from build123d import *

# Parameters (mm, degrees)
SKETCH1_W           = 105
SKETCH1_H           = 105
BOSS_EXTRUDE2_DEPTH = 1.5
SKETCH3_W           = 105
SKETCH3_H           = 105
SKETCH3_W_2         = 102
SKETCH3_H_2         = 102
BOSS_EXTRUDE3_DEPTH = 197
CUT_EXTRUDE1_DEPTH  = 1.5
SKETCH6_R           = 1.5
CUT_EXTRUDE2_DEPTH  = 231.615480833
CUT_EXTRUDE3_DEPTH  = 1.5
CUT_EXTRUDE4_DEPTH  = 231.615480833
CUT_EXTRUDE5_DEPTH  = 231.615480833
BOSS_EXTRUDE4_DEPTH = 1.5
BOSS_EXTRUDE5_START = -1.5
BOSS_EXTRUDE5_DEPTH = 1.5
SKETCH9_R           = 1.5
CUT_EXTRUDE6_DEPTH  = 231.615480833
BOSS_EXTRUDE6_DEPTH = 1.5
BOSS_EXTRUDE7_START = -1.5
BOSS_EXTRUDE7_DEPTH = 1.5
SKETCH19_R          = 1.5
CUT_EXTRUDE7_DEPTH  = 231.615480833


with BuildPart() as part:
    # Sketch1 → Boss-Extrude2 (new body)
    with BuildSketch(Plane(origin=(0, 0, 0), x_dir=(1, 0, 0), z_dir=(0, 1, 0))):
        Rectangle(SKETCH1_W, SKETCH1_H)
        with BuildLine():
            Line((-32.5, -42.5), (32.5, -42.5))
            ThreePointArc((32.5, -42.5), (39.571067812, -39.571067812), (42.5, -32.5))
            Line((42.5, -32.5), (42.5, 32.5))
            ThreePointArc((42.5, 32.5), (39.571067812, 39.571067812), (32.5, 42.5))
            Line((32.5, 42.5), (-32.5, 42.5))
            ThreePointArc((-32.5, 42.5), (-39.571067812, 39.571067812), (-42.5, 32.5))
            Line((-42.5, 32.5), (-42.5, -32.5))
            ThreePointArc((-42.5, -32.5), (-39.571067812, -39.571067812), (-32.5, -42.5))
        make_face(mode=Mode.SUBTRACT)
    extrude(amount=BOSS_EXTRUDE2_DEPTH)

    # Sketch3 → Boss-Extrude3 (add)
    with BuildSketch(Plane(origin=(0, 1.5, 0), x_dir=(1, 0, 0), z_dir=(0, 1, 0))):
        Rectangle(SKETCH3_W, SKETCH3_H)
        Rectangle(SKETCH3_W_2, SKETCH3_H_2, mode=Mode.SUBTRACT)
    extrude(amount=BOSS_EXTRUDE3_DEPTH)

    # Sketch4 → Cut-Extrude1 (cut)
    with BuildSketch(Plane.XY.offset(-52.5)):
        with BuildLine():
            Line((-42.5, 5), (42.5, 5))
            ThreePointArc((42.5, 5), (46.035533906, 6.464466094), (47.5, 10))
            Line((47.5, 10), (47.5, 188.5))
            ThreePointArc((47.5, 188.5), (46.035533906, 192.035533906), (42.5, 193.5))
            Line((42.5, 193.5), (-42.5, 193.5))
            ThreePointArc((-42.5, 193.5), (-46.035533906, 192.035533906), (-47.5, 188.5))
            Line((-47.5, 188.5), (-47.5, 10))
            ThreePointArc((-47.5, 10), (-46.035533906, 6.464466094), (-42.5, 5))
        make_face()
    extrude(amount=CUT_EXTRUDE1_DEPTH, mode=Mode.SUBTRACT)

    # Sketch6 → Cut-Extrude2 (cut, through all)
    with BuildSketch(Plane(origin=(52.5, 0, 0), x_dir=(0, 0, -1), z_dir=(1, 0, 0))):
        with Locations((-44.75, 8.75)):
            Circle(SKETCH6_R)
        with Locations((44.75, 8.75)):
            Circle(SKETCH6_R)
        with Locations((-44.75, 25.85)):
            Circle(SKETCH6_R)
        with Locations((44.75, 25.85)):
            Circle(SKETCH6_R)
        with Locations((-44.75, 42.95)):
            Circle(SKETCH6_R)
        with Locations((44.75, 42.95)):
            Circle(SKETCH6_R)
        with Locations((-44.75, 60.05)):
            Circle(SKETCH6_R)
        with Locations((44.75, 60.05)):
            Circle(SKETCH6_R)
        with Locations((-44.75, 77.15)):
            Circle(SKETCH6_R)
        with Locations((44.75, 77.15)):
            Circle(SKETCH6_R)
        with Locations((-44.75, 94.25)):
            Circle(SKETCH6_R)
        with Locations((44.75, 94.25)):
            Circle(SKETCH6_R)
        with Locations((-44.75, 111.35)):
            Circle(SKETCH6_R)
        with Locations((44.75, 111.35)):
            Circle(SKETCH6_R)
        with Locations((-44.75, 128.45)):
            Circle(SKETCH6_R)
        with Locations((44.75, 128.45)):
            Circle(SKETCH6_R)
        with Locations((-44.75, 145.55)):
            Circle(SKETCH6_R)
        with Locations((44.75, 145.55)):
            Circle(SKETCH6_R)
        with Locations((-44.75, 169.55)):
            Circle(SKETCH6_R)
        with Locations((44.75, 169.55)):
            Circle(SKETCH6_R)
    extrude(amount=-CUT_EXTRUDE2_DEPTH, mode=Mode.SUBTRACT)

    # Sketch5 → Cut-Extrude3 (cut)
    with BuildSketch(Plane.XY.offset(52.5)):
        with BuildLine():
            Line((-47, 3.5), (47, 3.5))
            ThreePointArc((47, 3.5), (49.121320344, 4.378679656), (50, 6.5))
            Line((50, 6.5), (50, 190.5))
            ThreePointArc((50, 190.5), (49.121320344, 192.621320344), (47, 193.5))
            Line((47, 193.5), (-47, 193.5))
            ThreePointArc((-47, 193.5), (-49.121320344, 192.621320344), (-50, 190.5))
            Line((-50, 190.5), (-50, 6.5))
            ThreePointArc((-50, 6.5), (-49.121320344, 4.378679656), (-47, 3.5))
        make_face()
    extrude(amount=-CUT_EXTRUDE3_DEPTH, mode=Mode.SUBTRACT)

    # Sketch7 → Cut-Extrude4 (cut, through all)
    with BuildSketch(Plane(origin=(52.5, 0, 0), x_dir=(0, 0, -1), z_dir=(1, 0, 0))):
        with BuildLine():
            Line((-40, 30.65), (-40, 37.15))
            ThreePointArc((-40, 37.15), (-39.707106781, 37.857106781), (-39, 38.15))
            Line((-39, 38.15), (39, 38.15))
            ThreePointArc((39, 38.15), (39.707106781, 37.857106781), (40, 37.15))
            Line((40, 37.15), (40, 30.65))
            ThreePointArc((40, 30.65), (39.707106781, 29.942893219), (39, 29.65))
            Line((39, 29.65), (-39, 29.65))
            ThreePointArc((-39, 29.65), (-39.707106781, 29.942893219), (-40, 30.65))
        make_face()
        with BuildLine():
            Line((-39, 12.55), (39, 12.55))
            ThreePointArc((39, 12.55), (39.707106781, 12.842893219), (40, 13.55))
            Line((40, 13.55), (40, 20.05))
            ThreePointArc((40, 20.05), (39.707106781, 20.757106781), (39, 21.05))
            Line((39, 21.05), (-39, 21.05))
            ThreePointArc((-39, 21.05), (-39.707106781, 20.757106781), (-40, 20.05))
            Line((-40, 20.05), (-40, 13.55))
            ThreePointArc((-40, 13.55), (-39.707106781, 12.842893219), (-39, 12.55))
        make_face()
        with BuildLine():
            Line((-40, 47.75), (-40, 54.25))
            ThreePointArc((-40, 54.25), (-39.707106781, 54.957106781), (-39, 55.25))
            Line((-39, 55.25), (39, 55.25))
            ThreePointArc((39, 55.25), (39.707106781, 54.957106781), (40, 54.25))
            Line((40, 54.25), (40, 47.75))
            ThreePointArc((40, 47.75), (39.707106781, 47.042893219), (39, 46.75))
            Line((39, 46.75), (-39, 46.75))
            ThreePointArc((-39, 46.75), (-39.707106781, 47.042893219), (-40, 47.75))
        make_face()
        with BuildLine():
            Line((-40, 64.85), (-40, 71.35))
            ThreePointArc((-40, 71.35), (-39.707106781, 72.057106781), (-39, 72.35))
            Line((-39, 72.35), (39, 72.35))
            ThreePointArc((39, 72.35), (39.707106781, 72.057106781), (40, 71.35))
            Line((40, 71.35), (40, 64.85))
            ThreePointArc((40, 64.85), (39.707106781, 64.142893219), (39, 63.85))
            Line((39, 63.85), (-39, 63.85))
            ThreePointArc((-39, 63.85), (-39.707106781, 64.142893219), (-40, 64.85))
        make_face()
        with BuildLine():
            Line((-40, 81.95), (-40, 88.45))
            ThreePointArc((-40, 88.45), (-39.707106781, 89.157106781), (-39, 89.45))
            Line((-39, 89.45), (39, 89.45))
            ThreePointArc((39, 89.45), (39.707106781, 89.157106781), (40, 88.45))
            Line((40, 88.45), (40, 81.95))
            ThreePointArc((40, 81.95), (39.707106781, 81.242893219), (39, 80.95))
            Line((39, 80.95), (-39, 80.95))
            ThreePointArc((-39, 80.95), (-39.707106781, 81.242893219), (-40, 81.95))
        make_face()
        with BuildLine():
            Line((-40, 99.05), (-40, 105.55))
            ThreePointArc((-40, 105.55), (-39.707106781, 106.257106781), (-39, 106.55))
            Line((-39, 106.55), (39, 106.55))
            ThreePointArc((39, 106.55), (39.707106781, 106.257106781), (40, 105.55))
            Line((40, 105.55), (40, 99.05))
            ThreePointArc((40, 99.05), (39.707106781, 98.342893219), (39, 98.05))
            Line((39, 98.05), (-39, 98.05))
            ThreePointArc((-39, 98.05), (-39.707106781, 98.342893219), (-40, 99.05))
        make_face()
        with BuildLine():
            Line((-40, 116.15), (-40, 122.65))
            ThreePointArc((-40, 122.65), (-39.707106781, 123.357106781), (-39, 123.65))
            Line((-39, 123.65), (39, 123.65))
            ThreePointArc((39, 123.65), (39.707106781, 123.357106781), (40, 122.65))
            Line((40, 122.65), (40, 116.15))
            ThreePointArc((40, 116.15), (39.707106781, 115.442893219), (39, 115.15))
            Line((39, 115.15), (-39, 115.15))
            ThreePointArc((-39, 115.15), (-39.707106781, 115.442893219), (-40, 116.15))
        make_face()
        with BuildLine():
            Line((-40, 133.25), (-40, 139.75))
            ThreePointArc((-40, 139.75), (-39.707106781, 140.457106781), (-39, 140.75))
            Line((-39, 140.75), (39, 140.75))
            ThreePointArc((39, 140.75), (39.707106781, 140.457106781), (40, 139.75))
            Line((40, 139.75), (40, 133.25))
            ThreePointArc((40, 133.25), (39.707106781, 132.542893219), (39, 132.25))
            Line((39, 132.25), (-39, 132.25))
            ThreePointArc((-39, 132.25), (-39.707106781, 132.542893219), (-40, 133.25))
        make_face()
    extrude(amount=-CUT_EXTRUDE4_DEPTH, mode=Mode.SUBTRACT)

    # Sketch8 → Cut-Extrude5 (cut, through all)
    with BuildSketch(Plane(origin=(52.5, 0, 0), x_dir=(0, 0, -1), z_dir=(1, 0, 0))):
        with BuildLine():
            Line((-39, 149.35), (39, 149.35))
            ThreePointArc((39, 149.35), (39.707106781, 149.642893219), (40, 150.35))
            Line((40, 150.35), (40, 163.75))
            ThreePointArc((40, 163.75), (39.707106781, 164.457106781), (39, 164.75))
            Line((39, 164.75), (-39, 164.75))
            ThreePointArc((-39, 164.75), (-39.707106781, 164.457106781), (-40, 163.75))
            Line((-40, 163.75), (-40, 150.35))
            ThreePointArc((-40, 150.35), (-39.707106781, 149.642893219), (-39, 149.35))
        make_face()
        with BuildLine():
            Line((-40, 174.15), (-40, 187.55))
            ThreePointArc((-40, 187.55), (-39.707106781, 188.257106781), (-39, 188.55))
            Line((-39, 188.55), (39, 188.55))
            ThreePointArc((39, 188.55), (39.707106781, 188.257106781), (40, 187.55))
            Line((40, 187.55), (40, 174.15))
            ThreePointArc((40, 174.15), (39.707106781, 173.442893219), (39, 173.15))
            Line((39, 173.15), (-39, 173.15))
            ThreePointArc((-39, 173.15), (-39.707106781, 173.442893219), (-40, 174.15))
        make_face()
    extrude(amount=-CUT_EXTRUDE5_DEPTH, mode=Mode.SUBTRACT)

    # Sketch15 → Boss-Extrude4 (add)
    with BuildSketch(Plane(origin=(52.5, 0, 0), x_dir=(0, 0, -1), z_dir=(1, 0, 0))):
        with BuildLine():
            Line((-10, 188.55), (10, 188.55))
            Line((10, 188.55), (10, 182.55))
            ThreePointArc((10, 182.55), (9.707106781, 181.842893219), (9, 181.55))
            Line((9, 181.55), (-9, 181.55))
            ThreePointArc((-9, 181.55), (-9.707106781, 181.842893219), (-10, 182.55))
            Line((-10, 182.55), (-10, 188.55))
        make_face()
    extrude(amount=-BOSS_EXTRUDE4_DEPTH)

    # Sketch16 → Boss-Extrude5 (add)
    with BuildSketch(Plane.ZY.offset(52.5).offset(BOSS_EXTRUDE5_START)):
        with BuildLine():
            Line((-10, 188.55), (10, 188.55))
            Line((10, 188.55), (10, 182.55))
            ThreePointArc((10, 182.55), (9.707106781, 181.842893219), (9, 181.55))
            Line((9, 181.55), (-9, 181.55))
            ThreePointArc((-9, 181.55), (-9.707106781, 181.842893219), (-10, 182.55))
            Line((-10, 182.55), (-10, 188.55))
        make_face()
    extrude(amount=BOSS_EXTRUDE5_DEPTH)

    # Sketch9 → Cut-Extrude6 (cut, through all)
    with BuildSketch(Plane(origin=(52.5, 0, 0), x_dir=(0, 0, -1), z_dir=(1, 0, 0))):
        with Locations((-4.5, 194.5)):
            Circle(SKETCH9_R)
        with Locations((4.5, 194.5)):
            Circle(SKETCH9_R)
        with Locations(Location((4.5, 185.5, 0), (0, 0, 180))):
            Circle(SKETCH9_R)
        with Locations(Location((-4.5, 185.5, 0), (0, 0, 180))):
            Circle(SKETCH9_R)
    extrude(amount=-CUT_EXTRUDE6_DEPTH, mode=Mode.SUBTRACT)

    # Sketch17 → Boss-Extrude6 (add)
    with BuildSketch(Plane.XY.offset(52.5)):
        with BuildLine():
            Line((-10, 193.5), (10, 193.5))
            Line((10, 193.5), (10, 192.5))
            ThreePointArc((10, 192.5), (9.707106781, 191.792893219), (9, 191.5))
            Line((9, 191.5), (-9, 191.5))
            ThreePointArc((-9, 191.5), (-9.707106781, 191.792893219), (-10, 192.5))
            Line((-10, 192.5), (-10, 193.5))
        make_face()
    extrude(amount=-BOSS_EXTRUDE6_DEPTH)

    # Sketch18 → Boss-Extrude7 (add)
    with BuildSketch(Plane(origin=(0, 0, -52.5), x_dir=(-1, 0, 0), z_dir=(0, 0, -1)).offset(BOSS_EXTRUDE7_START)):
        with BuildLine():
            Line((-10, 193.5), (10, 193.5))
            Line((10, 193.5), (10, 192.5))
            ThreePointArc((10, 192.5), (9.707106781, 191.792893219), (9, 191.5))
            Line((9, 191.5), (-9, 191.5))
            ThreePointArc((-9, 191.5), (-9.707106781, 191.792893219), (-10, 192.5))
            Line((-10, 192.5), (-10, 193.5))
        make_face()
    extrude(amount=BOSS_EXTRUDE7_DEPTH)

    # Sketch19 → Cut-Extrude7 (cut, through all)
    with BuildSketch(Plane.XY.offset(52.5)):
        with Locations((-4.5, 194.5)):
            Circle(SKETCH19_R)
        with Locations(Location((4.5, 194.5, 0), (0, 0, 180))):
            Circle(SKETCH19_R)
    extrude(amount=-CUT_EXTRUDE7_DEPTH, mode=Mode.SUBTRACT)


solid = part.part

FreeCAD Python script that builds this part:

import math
import FreeCAD as App
import Part
import Sketcher

V = App.Vector


def add_polygon(sketch, points):
    """Adds a closed chain of lines whose ends are joined by coincident constraints."""
    first, n = sketch.GeometryCount, len(points)
    for a, b in zip(points, points[1:] + points[:1]):
        sketch.addGeometry(Part.LineSegment(App.Vector(*a, 0), App.Vector(*b, 0)), False)
    for i in range(n):
        sketch.addConstraint(Sketcher.Constraint("Coincident", first + i, 2, first + (i + 1) % n, 1))

doc = App.newDocument("Part")
body = doc.addObject("PartDesign::Body", "Body")

# Sketch on XZ plane
sketch1 = body.newObject("Sketcher::SketchObject", "Sketch")
sketch1.AttachmentSupport = (doc.getObject("XZ_Plane"), [""])
sketch1.MapMode = "FlatFace"
add_polygon(sketch1, [(-52, -52), (-52, 52), (52, 52), (52, -52)])  # lines 0-3
sketch1.addGeometry(Part.LineSegment(V(32, 42, 0), V(-32, 42, 0)), False)  # 4
sketch1.addGeometry(Part.ArcOfCircle(Part.Circle(V(-32, 32, 0), V(0, 0, 1), 10), math.radians(90), math.radians(180)), False)  # 5
sketch1.addGeometry(Part.LineSegment(V(-42, 32, 0), V(-42, -32, 0)), False)  # 6
sketch1.addGeometry(Part.ArcOfCircle(Part.Circle(V(-32, -32, 0), V(0, 0, 1), 10), math.radians(180), math.radians(270)), False)  # 7
sketch1.addGeometry(Part.LineSegment(V(-32, -42, 0), V(32, -42, 0)), False)  # 8
sketch1.addGeometry(Part.ArcOfCircle(Part.Circle(V(32, -32, 0), V(0, 0, 1), 10), math.radians(-90), math.radians(0)), False)  # 9
sketch1.addGeometry(Part.LineSegment(V(42, -32, 0), V(42, 32, 0)), False)  # 10
sketch1.addGeometry(Part.ArcOfCircle(Part.Circle(V(32, 32, 0), V(0, 0, 1), 10), math.radians(0), math.radians(90)), False)  # 11
sketch1.addConstraint([
    Sketcher.Constraint("Tangent", 4, 2, 5, 1),
    Sketcher.Constraint("Tangent", 5, 2, 6, 1),
    Sketcher.Constraint("Tangent", 6, 2, 7, 1),
    Sketcher.Constraint("Tangent", 7, 2, 8, 1),
    Sketcher.Constraint("Tangent", 8, 2, 9, 1),
    Sketcher.Constraint("Tangent", 9, 2, 10, 1),
    Sketcher.Constraint("Tangent", 10, 2, 11, 1),
    Sketcher.Constraint("Tangent", 11, 2, 4, 1),
    Sketcher.Constraint("Vertical", 0),
    Sketcher.Constraint("Horizontal", 1),
    Sketcher.Constraint("Vertical", 2),
    Sketcher.Constraint("Horizontal", 3),
    Sketcher.Constraint("Horizontal", 4),
    Sketcher.Constraint("Vertical", 6),
    Sketcher.Constraint("Horizontal", 8),
    Sketcher.Constraint("Vertical", 10),
    Sketcher.Constraint("Equal", 5, 7),
    Sketcher.Constraint("Equal", 7, 9),
    Sketcher.Constraint("Equal", 9, 11),
    Sketcher.Constraint("Symmetric", 5, 3, 9, 3, -1, 1),
    Sketcher.Constraint("Symmetric", 0, 2, 2, 2, -1, 1),
    Sketcher.Constraint("Equal", 3, 0),
    Sketcher.Constraint("Equal", 8, 6),
    Sketcher.Constraint("Radius", 5, 10.0),
    Sketcher.Constraint("DistanceX", 1, 1, 1, 2, 105.0),
    Sketcher.Constraint("DistanceX", 4, 2, 4, 1, 65.0),
])
pad1 = body.newObject("PartDesign::Pad", "Pad")
pad1.Profile = sketch1
pad1.Length = 1.5
pad1.Reversed = True

# Sketch on XZ plane
sketch2 = body.newObject("Sketcher::SketchObject", "Sketch001")
sketch2.AttachmentSupport = (doc.getObject("XZ_Plane"), [""])
sketch2.MapMode = "FlatFace"
sketch2.AttachmentOffset = App.Placement(V(0, 0, -1.5), App.Rotation())
add_polygon(sketch2, [(-52, -52), (-52, 52), (52, 52), (52, -52)])  # lines 0-3
add_polygon(sketch2, [(51, 51), (-51, 51), (-51, -51), (51, -51)])  # lines 4-7
sketch2.addConstraint([
    Sketcher.Constraint("Vertical", 0),
    Sketcher.Constraint("Horizontal", 1),
    Sketcher.Constraint("Vertical", 2),
    Sketcher.Constraint("Horizontal", 3),
    Sketcher.Constraint("Horizontal", 4),
    Sketcher.Constraint("Vertical", 5),
    Sketcher.Constraint("Horizontal", 6),
    Sketcher.Constraint("Vertical", 7),
    Sketcher.Constraint("Symmetric", 0, 2, 2, 2, -1, 1),
    Sketcher.Constraint("Symmetric", 4, 2, 6, 2, -1, 1),
    Sketcher.Constraint("Equal", 3, 0),
    Sketcher.Constraint("Equal", 6, 5),
    Sketcher.Constraint("DistanceX", 1, 1, 1, 2, 105.0),
    Sketcher.Constraint("DistanceX", 4, 2, 4, 1, 102.0),
])
pad2 = body.newObject("PartDesign::Pad", "Pad001")
pad2.Profile = sketch2
pad2.Length = 197
pad2.Reversed = True

# Sketch on XY plane
sketch3 = body.newObject("Sketcher::SketchObject", "Sketch002")
sketch3.AttachmentSupport = (doc.getObject("XY_Plane"), [""])
sketch3.MapMode = "FlatFace"
sketch3.AttachmentOffset = App.Placement(V(0, 0, -52.5), App.Rotation())
sketch3.addGeometry([
    Part.LineSegment(V(-42, 5, 0), V(42, 5, 0)),  # 0
    Part.ArcOfCircle(Part.Circle(V(42, 10, 0), V(0, 0, 1), 5), math.radians(-90), math.radians(0)),  # 1
    Part.LineSegment(V(48, 10, 0), V(48, 188, 0)),  # 2
    Part.ArcOfCircle(Part.Circle(V(42, 188, 0), V(0, 0, 1), 5), math.radians(0), math.radians(90)),  # 3
    Part.LineSegment(V(42, 194, 0), V(-42, 194, 0)),  # 4
    Part.ArcOfCircle(Part.Circle(V(-42, 188, 0), V(0, 0, 1), 5), math.radians(90), math.radians(180)),  # 5
    Part.LineSegment(V(-48, 188, 0), V(-48, 10, 0)),  # 6
    Part.ArcOfCircle(Part.Circle(V(-42, 10, 0), V(0, 0, 1), 5), math.radians(180), math.radians(270)),  # 7
], False)
sketch3.addConstraint([
    Sketcher.Constraint("Tangent", 0, 2, 1, 1),
    Sketcher.Constraint("Tangent", 1, 2, 2, 1),
    Sketcher.Constraint("Tangent", 2, 2, 3, 1),
    Sketcher.Constraint("Tangent", 3, 2, 4, 1),
    Sketcher.Constraint("Tangent", 4, 2, 5, 1),
    Sketcher.Constraint("Tangent", 5, 2, 6, 1),
    Sketcher.Constraint("Tangent", 6, 2, 7, 1),
    Sketcher.Constraint("Tangent", 7, 2, 0, 1),
    Sketcher.Constraint("Horizontal", 0),
    Sketcher.Constraint("Vertical", 2),
    Sketcher.Constraint("Horizontal", 4),
    Sketcher.Constraint("Vertical", 6),
    Sketcher.Constraint("Equal", 1, 3),
    Sketcher.Constraint("Equal", 3, 5),
    Sketcher.Constraint("Equal", 5, 7),
    Sketcher.Constraint("Radius", 1, 5.0),
    Sketcher.Constraint("DistanceX", 0, 1, 0, 2, 85.0),
    Sketcher.Constraint("DistanceY", 2, 1, 2, 2, 178.5),
    Sketcher.Constraint("DistanceY", -1, 1, 1, 3, 10.0),
    Sketcher.Constraint("DistanceX", -1, 1, 1, 3, 42.5),
])
pocket1 = body.newObject("PartDesign::Pocket", "Pocket")
pocket1.Profile = sketch3
pocket1.Length = 1.5
pocket1.Reversed = True

# Sketch on YZ plane
sketch4 = body.newObject("Sketcher::SketchObject", "Sketch003")
sketch4.AttachmentSupport = (doc.getObject("YZ_Plane"), [""])
sketch4.MapMode = "FlatFace"
sketch4.AttachmentOffset = App.Placement(V(0, 0, 52.5), App.Rotation())
sketch4.addGeometry([
    Part.Circle(V(8.8, 44.8, 0), V(0, 0, 1), 1.5),  # 0
    Part.Circle(V(8.8, -44.8, 0), V(0, 0, 1), 1.5),  # 1
    Part.Circle(V(25.9, 44.8, 0), V(0, 0, 1), 1.5),  # 2
    Part.Circle(V(25.9, -44.8, 0), V(0, 0, 1), 1.5),  # 3
    Part.Circle(V(43, 44.8, 0), V(0, 0, 1), 1.5),  # 4
    Part.Circle(V(43, -44.8, 0), V(0, 0, 1), 1.5),  # 5
    Part.Circle(V(60, 44.8, 0), V(0, 0, 1), 1.5),  # 6
    Part.Circle(V(60, -44.8, 0), V(0, 0, 1), 1.5),  # 7
    Part.Circle(V(77.2, 44.8, 0), V(0, 0, 1), 1.5),  # 8
    Part.Circle(V(77.2, -44.8, 0), V(0, 0, 1), 1.5),  # 9
    Part.Circle(V(94.2, 44.8, 0), V(0, 0, 1), 1.5),  # 10
    Part.Circle(V(94.2, -44.8, 0), V(0, 0, 1), 1.5),  # 11
    Part.Circle(V(111.3, 44.8, 0), V(0, 0, 1), 1.5),  # 12
    Part.Circle(V(111.3, -44.8, 0), V(0, 0, 1), 1.5),  # 13
    Part.Circle(V(128.4, 44.8, 0), V(0, 0, 1), 1.5),  # 14
    Part.Circle(V(128.4, -44.8, 0), V(0, 0, 1), 1.5),  # 15
    Part.Circle(V(145.6, 44.8, 0), V(0, 0, 1), 1.5),  # 16
    Part.Circle(V(145.6, -44.8, 0), V(0, 0, 1), 1.5),  # 17
    Part.Circle(V(169.6, 44.8, 0), V(0, 0, 1), 1.5),  # 18
    Part.Circle(V(169.6, -44.8, 0), V(0, 0, 1), 1.5),  # 19
], False)
sketch4.addConstraint([
    Sketcher.Constraint("Equal", 0, 1),
    Sketcher.Constraint("Equal", 1, 2),
    Sketcher.Constraint("Equal", 2, 3),
    Sketcher.Constraint("Equal", 3, 4),
    Sketcher.Constraint("Equal", 4, 5),
    Sketcher.Constraint("Equal", 5, 6),
    Sketcher.Constraint("Equal", 6, 7),
    Sketcher.Constraint("Equal", 7, 8),
    Sketcher.Constraint("Equal", 8, 9),
    Sketcher.Constraint("Equal", 9, 10),
    Sketcher.Constraint("Equal", 10, 11),
    Sketcher.Constraint("Equal", 11, 12),
    Sketcher.Constraint("Equal", 12, 13),
    Sketcher.Constraint("Equal", 13, 14),
    Sketcher.Constraint("Equal", 14, 15),
    Sketcher.Constraint("Equal", 15, 16),
    Sketcher.Constraint("Equal", 16, 17),
    Sketcher.Constraint("Equal", 17, 18),
    Sketcher.Constraint("Equal", 18, 19),
    Sketcher.Constraint("Symmetric", 0, 3, 1, 3, -1),
    Sketcher.Constraint("Symmetric", 2, 3, 3, 3, -1),
    Sketcher.Constraint("Symmetric", 4, 3, 5, 3, -1),
    Sketcher.Constraint("Symmetric", 6, 3, 7, 3, -1),
    Sketcher.Constraint("Symmetric", 8, 3, 9, 3, -1),
    Sketcher.Constraint("Symmetric", 10, 3, 11, 3, -1),
    Sketcher.Constraint("Symmetric", 12, 3, 13, 3, -1),
    Sketcher.Constraint("Symmetric", 14, 3, 15, 3, -1),
    Sketcher.Constraint("Symmetric", 16, 3, 17, 3, -1),
    Sketcher.Constraint("Symmetric", 18, 3, 19, 3, -1),
    Sketcher.Constraint("Horizontal", 0, 3, 2, 3),
    Sketcher.Constraint("Horizontal", 2, 3, 4, 3),
    Sketcher.Constraint("Horizontal", 4, 3, 6, 3),
    Sketcher.Constraint("Horizontal", 6, 3, 8, 3),
    Sketcher.Constraint("Horizontal", 8, 3, 10, 3),
    Sketcher.Constraint("Horizontal", 10, 3, 12, 3),
    Sketcher.Constraint("Horizontal", 12, 3, 14, 3),
    Sketcher.Constraint("Horizontal", 14, 3, 16, 3),
    Sketcher.Constraint("Horizontal", 16, 3, 18, 3),
    Sketcher.Constraint("Diameter", 0, 3.0),
    Sketcher.Constraint("DistanceX", 16, 3, 18, 3, 24.0),
    Sketcher.Constraint("DistanceY", 1, 3, 0, 3, 89.5),
    Sketcher.Constraint("DistanceX", 0, 3, 2, 3, 17.1),
    Sketcher.Constraint("DistanceX", 2, 3, 4, 3, 17.1),
    Sketcher.Constraint("DistanceX", 4, 3, 6, 3, 17.1),
    Sketcher.Constraint("DistanceX", 6, 3, 8, 3, 17.1),
    Sketcher.Constraint("DistanceX", 8, 3, 10, 3, 17.1),
    Sketcher.Constraint("DistanceX", 10, 3, 12, 3, 17.1),
    Sketcher.Constraint("DistanceX", 12, 3, 14, 3, 17.1),
    Sketcher.Constraint("DistanceX", 14, 3, 16, 3, 17.1),
    Sketcher.Constraint("DistanceX", -1, 1, 0, 3, 8.75),
])
pocket2 = body.newObject("PartDesign::Pocket", "Pocket001")
pocket2.Profile = sketch4
pocket2.Type = "ThroughAll"

# Sketch on XY plane
sketch5 = body.newObject("Sketcher::SketchObject", "Sketch004")
sketch5.AttachmentSupport = (doc.getObject("XY_Plane"), [""])
sketch5.MapMode = "FlatFace"
sketch5.AttachmentOffset = App.Placement(V(0, 0, 52.5), App.Rotation())
sketch5.addGeometry([
    Part.LineSegment(V(-47, 3.5, 0), V(47, 3.5, 0)),  # 0
    Part.ArcOfCircle(Part.Circle(V(47, 6.5, 0), V(0, 0, 1), 3), math.radians(-90), math.radians(0)),  # 1
    Part.LineSegment(V(50, 6.5, 0), V(50, 190.5, 0)),  # 2
    Part.ArcOfCircle(Part.Circle(V(47, 190.5, 0), V(0, 0, 1), 3), math.radians(0), math.radians(90)),  # 3
    Part.LineSegment(V(47, 193.5, 0), V(-47, 193.5, 0)),  # 4
    Part.ArcOfCircle(Part.Circle(V(-47, 190.5, 0), V(0, 0, 1), 3), math.radians(90), math.radians(180)),  # 5
    Part.LineSegment(V(-50, 190.5, 0), V(-50, 6.5, 0)),  # 6
    Part.ArcOfCircle(Part.Circle(V(-47, 6.5, 0), V(0, 0, 1), 3), math.radians(180), math.radians(270)),  # 7
], False)
sketch5.addConstraint([
    Sketcher.Constraint("Tangent", 0, 2, 1, 1),
    Sketcher.Constraint("Tangent", 1, 2, 2, 1),
    Sketcher.Constraint("Tangent", 2, 2, 3, 1),
    Sketcher.Constraint("Tangent", 3, 2, 4, 1),
    Sketcher.Constraint("Tangent", 4, 2, 5, 1),
    Sketcher.Constraint("Tangent", 5, 2, 6, 1),
    Sketcher.Constraint("Tangent", 6, 2, 7, 1),
    Sketcher.Constraint("Tangent", 7, 2, 0, 1),
    Sketcher.Constraint("Horizontal", 0),
    Sketcher.Constraint("Vertical", 2),
    Sketcher.Constraint("Horizontal", 4),
    Sketcher.Constraint("Vertical", 6),
    Sketcher.Constraint("Equal", 1, 3),
    Sketcher.Constraint("Equal", 3, 5),
    Sketcher.Constraint("Equal", 5, 7),
    Sketcher.Constraint("Radius", 1, 3.0),
    Sketcher.Constraint("DistanceX", 0, 1, 0, 2, 94.0),
    Sketcher.Constraint("DistanceY", 2, 1, 2, 2, 184.0),
    Sketcher.Constraint("DistanceX", -1, 1, 1, 3, 47.0),
    Sketcher.Constraint("DistanceY", -1, 1, 1, 3, 6.5),
])
pocket3 = body.newObject("PartDesign::Pocket", "Pocket002")
pocket3.Profile = sketch5
pocket3.Length = 1.5

# Sketch on YZ plane
sketch6 = body.newObject("Sketcher::SketchObject", "Sketch005")
sketch6.AttachmentSupport = (doc.getObject("YZ_Plane"), [""])
sketch6.MapMode = "FlatFace"
sketch6.AttachmentOffset = App.Placement(V(0, 0, 52.5), App.Rotation())
sketch6.addGeometry([
    Part.LineSegment(V(37.1, 40, 0), V(30.6, 40, 0)),  # 0
    Part.ArcOfCircle(Part.Circle(V(30.7, 39, 0), V(0, 0, 1), 1), math.radians(90), math.radians(180)),  # 1
    Part.LineSegment(V(29.6, 39, 0), V(29.6, -39, 0)),  # 2
    Part.ArcOfCircle(Part.Circle(V(30.7, -39, 0), V(0, 0, 1), 1), math.radians(-180), math.radians(-90)),  # 3
    Part.LineSegment(V(30.6, -40, 0), V(37.1, -40, 0)),  # 4
    Part.ArcOfCircle(Part.Circle(V(37.1, -39, 0), V(0, 0, 1), 1), math.radians(-90), math.radians(0)),  # 5
    Part.LineSegment(V(38.1, -39, 0), V(38.1, 39, 0)),  # 6
    Part.ArcOfCircle(Part.Circle(V(37.1, 39, 0), V(0, 0, 1), 1), math.radians(0), math.radians(90)),  # 7
    Part.LineSegment(V(12.6, 39, 0), V(12.6, -39, 0)),  # 8
    Part.ArcOfCircle(Part.Circle(V(13.6, -39, 0), V(0, 0, 1), 1), math.radians(-180), math.radians(-90)),  # 9
    Part.LineSegment(V(13.6, -40, 0), V(20.1, -40, 0)),  # 10
    Part.ArcOfCircle(Part.Circle(V(20, -39, 0), V(0, 0, 1), 1), math.radians(-90), math.radians(0)),  # 11
    Part.LineSegment(V(21.1, -39, 0), V(21.1, 39, 0)),  # 12
    Part.ArcOfCircle(Part.Circle(V(20, 39, 0), V(0, 0, 1), 1), math.radians(0), math.radians(90)),  # 13
    Part.LineSegment(V(20.1, 40, 0), V(13.6, 40, 0)),  # 14
    Part.ArcOfCircle(Part.Circle(V(13.6, 39, 0), V(0, 0, 1), 1), math.radians(90), math.radians(180)),  # 15
    Part.LineSegment(V(54.2, 40, 0), V(47.8, 40, 0)),  # 16
    Part.ArcOfCircle(Part.Circle(V(47.8, 39, 0), V(0, 0, 1), 1), math.radians(90), math.radians(180)),  # 17
    Part.LineSegment(V(46.8, 39, 0), V(46.8, -39, 0)),  # 18
    Part.ArcOfCircle(Part.Circle(V(47.8, -39, 0), V(0, 0, 1), 1), math.radians(-180), math.radians(-90)),  # 19
    Part.LineSegment(V(47.8, -40, 0), V(54.2, -40, 0)),  # 20
    Part.ArcOfCircle(Part.Circle(V(54.2, -39, 0), V(0, 0, 1), 1), math.radians(-90), math.radians(0)),  # 21
    Part.LineSegment(V(55.2, -39, 0), V(55.2, 39, 0)),  # 22
    Part.ArcOfCircle(Part.Circle(V(54.2, 39, 0), V(0, 0, 1), 1), math.radians(0), math.radians(90)),  # 23
    Part.LineSegment(V(71.3, 40, 0), V(64.8, 40, 0)),  # 24
    Part.ArcOfCircle(Part.Circle(V(64.9, 39, 0), V(0, 0, 1), 1), math.radians(90), math.radians(180)),  # 25
    Part.LineSegment(V(63.9, 39, 0), V(63.9, -39, 0)),  # 26
    Part.ArcOfCircle(Part.Circle(V(64.9, -39, 0), V(0, 0, 1), 1), math.radians(-180), math.radians(-90)),  # 27
    Part.LineSegment(V(64.8, -40, 0), V(71.3, -40, 0)),  # 28
    Part.ArcOfCircle(Part.Circle(V(71.3, -39, 0), V(0, 0, 1), 1), math.radians(-90), math.radians(0)),  # 29
    Part.LineSegment(V(72.3, -39, 0), V(72.3, 39, 0)),  # 30
    Part.ArcOfCircle(Part.Circle(V(71.3, 39, 0), V(0, 0, 1), 1), math.radians(0), math.radians(90)),  # 31
    Part.LineSegment(V(88.5, 40, 0), V(82, 40, 0)),  # 32
    Part.ArcOfCircle(Part.Circle(V(82, 39, 0), V(0, 0, 1), 1), math.radians(90), math.radians(180)),  # 33
    Part.LineSegment(V(81, 39, 0), V(81, -39, 0)),  # 34
    Part.ArcOfCircle(Part.Circle(V(82, -39, 0), V(0, 0, 1), 1), math.radians(-180), math.radians(-90)),  # 35
    Part.LineSegment(V(82, -40, 0), V(88.5, -40, 0)),  # 36
    Part.ArcOfCircle(Part.Circle(V(88.4, -39, 0), V(0, 0, 1), 1), math.radians(-90), math.radians(0)),  # 37
    Part.LineSegment(V(89.5, -39, 0), V(89.5, 39, 0)),  # 38
    Part.ArcOfCircle(Part.Circle(V(88.4, 39, 0), V(0, 0, 1), 1), math.radians(0), math.radians(90)),  # 39
    Part.LineSegment(V(105.5, 40, 0), V(99, 40, 0)),  # 40
    Part.ArcOfCircle(Part.Circle(V(99.1, 39, 0), V(0, 0, 1), 1), math.radians(90), math.radians(180)),  # 41
    Part.LineSegment(V(98, 39, 0), V(98, -39, 0)),  # 42
    Part.ArcOfCircle(Part.Circle(V(99.1, -39, 0), V(0, 0, 1), 1), math.radians(-180), math.radians(-90)),  # 43
    Part.LineSegment(V(99, -40, 0), V(105.5, -40, 0)),  # 44
    Part.ArcOfCircle(Part.Circle(V(105.5, -39, 0), V(0, 0, 1), 1), math.radians(-90), math.radians(0)),  # 45
    Part.LineSegment(V(106.5, -39, 0), V(106.5, 39, 0)),  # 46
    Part.ArcOfCircle(Part.Circle(V(105.5, 39, 0), V(0, 0, 1), 1), math.radians(0), math.radians(90)),  # 47
    Part.LineSegment(V(122.7, 40, 0), V(116.2, 40, 0)),  # 48
    Part.ArcOfCircle(Part.Circle(V(116.2, 39, 0), V(0, 0, 1), 1), math.radians(90), math.radians(180)),  # 49
    Part.LineSegment(V(115.2, 39, 0), V(115.2, -39, 0)),  # 50
    Part.ArcOfCircle(Part.Circle(V(116.2, -39, 0), V(0, 0, 1), 1), math.radians(-180), math.radians(-90)),  # 51
    Part.LineSegment(V(116.2, -40, 0), V(122.7, -40, 0)),  # 52
    Part.ArcOfCircle(Part.Circle(V(122.6, -39, 0), V(0, 0, 1), 1), math.radians(-90), math.radians(0)),  # 53
    Part.LineSegment(V(123.7, -39, 0), V(123.7, 39, 0)),  # 54
    Part.ArcOfCircle(Part.Circle(V(122.6, 39, 0), V(0, 0, 1), 1), math.radians(0), math.radians(90)),  # 55
    Part.LineSegment(V(139.8, 40, 0), V(133.2, 40, 0)),  # 56
    Part.ArcOfCircle(Part.Circle(V(133.3, 39, 0), V(0, 0, 1), 1), math.radians(90), math.radians(180)),  # 57
    Part.LineSegment(V(132.2, 39, 0), V(132.2, -39, 0)),  # 58
    Part.ArcOfCircle(Part.Circle(V(133.3, -39, 0), V(0, 0, 1), 1), math.radians(-180), math.radians(-90)),  # 59
    Part.LineSegment(V(133.2, -40, 0), V(139.8, -40, 0)),  # 60
    Part.ArcOfCircle(Part.Circle(V(139.7, -39, 0), V(0, 0, 1), 1), math.radians(-90), math.radians(0)),  # 61
    Part.LineSegment(V(140.8, -39, 0), V(140.8, 39, 0)),  # 62
    Part.ArcOfCircle(Part.Circle(V(139.7, 39, 0), V(0, 0, 1), 1), math.radians(0), math.radians(90)),  # 63
], False)
sketch6.addConstraint([
    Sketcher.Constraint("Tangent", 0, 2, 1, 1),
    Sketcher.Constraint("Tangent", 1, 2, 2, 1),
    Sketcher.Constraint("Tangent", 2, 2, 3, 1),
    Sketcher.Constraint("Tangent", 3, 2, 4, 1),
    Sketcher.Constraint("Tangent", 4, 2, 5, 1),
    Sketcher.Constraint("Tangent", 5, 2, 6, 1),
    Sketcher.Constraint("Tangent", 6, 2, 7, 1),
    Sketcher.Constraint("Tangent", 7, 2, 0, 1),
    Sketcher.Constraint("Tangent", 8, 2, 9, 1),
    Sketcher.Constraint("Tangent", 9, 2, 10, 1),
    Sketcher.Constraint("Tangent", 10, 2, 11, 1),
    Sketcher.Constraint("Tangent", 11, 2, 12, 1),
    Sketcher.Constraint("Tangent", 12, 2, 13, 1),
    Sketcher.Constraint("Tangent", 13, 2, 14, 1),
    Sketcher.Constraint("Tangent", 14, 2, 15, 1),
    Sketcher.Constraint("Tangent", 15, 2, 8, 1),
    Sketcher.Constraint("Tangent", 16, 2, 17, 1),
    Sketcher.Constraint("Tangent", 17, 2, 18, 1),
    Sketcher.Constraint("Tangent", 18, 2, 19, 1),
    Sketcher.Constraint("Tangent", 19, 2, 20, 1),
    Sketcher.Constraint("Tangent", 20, 2, 21, 1),
    Sketcher.Constraint("Tangent", 21, 2, 22, 1),
    Sketcher.Constraint("Tangent", 22, 2, 23, 1),
    Sketcher.Constraint("Tangent", 23, 2, 16, 1),
    Sketcher.Constraint("Tangent", 24, 2, 25, 1),
    Sketcher.Constraint("Tangent", 25, 2, 26, 1),
    Sketcher.Constraint("Tangent", 26, 2, 27, 1),
    Sketcher.Constraint("Tangent", 27, 2, 28, 1),
    Sketcher.Constraint("Tangent", 28, 2, 29, 1),
    Sketcher.Constraint("Tangent", 29, 2, 30, 1),
    Sketcher.Constraint("Tangent", 30, 2, 31, 1),
    Sketcher.Constraint("Tangent", 31, 2, 24, 1),
    Sketcher.Constraint("Tangent", 32, 2, 33, 1),
    Sketcher.Constraint("Tangent", 33, 2, 34, 1),
    Sketcher.Constraint("Tangent", 34, 2, 35, 1),
    Sketcher.Constraint("Tangent", 35, 2, 36, 1),
    Sketcher.Constraint("Tangent", 36, 2, 37, 1),
    Sketcher.Constraint("Tangent", 37, 2, 38, 1),
    Sketcher.Constraint("Tangent", 38, 2, 39, 1),
    Sketcher.Constraint("Tangent", 39, 2, 32, 1),
    Sketcher.Constraint("Tangent", 40, 2, 41, 1),
    Sketcher.Constraint("Tangent", 41, 2, 42, 1),
    Sketcher.Constraint("Tangent", 42, 2, 43, 1),
    Sketcher.Constraint("Tangent", 43, 2, 44, 1),
    Sketcher.Constraint("Tangent", 44, 2, 45, 1),
    Sketcher.Constraint("Tangent", 45, 2, 46, 1),
    Sketcher.Constraint("Tangent", 46, 2, 47, 1),
    Sketcher.Constraint("Tangent", 47, 2, 40, 1),
    Sketcher.Constraint("Tangent", 48, 2, 49, 1),
    Sketcher.Constraint("Tangent", 49, 2, 50, 1),
    Sketcher.Constraint("Tangent", 50, 2, 51, 1),
    Sketcher.Constraint("Tangent", 51, 2, 52, 1),
    Sketcher.Constraint("Tangent", 52, 2, 53, 1),
    Sketcher.Constraint("Tangent", 53, 2, 54, 1),
    Sketcher.Constraint("Tangent", 54, 2, 55, 1),
    Sketcher.Constraint("Tangent", 55, 2, 48, 1),
    Sketcher.Constraint("Tangent", 56, 2, 57, 1),
    Sketcher.Constraint("Tangent", 57, 2, 58, 1),
    Sketcher.Constraint("Tangent", 58, 2, 59, 1),
    Sketcher.Constraint("Tangent", 59, 2, 60, 1),
    Sketcher.Constraint("Tangent", 60, 2, 61, 1),
    Sketcher.Constraint("Tangent", 61, 2, 62, 1),
    Sketcher.Constraint("Tangent", 62, 2, 63, 1),
    Sketcher.Constraint("Tangent", 63, 2, 56, 1),
    Sketcher.Constraint("Horizontal", 0),
    Sketcher.Constraint("Vertical", 2),
    Sketcher.Constraint("Horizontal", 4),
    Sketcher.Constraint("Vertical", 6),
    Sketcher.Constraint("Vertical", 8),
    Sketcher.Constraint("Horizontal", 10),
    Sketcher.Constraint("Vertical", 12),
    Sketcher.Constraint("Horizontal", 14),
    Sketcher.Constraint("Horizontal", 16),
    Sketcher.Constraint("Vertical", 18),
    Sketcher.Constraint("Horizontal", 20),
    Sketcher.Constraint("Vertical", 22),
    Sketcher.Constraint("Horizontal", 24),
    Sketcher.Constraint("Vertical", 26),
    Sketcher.Constraint("Horizontal", 28),
    Sketcher.Constraint("Vertical", 30),
    Sketcher.Constraint("Horizontal", 32),
    Sketcher.Constraint("Vertical", 34),
    Sketcher.Constraint("Horizontal", 36),
    Sketcher.Constraint("Vertical", 38),
    Sketcher.Constraint("Horizontal", 40),
    Sketcher.Constraint("Vertical", 42),
    Sketcher.Constraint("Horizontal", 44),
    Sketcher.Constraint("Vertical", 46),
    Sketcher.Constraint("Horizontal", 48),
    Sketcher.Constraint("Vertical", 50),
    Sketcher.Constraint("Horizontal", 52),
    Sketcher.Constraint("Vertical", 54),
    Sketcher.Constraint("Horizontal", 56),
    Sketcher.Constraint("Vertical", 58),
    Sketcher.Constraint("Horizontal", 60),
    Sketcher.Constraint("Vertical", 62),
    Sketcher.Constraint("Equal", 1, 3),
    Sketcher.Constraint("Equal", 3, 5),
    Sketcher.Constraint("Equal", 5, 7),
    Sketcher.Constraint("Equal", 7, 9),
    Sketcher.Constraint("Equal", 9, 11),
    Sketcher.Constraint("Equal", 11, 13),
    Sketcher.Constraint("Equal", 13, 15),
    Sketcher.Constraint("Equal", 15, 17),
    Sketcher.Constraint("Equal", 17, 19),
    Sketcher.Constraint("Equal", 19, 21),
    Sketcher.Constraint("Equal", 21, 23),
    Sketcher.Constraint("Equal", 23, 25),
    Sketcher.Constraint("Equal", 25, 27),
    Sketcher.Constraint("Equal", 27, 29),
    Sketcher.Constraint("Equal", 29, 31),
    Sketcher.Constraint("Equal", 31, 33),
    Sketcher.Constraint("Equal", 33, 35),
    Sketcher.Constraint("Equal", 35, 37),
    Sketcher.Constraint("Equal", 37, 39),
    Sketcher.Constraint("Equal", 39, 41),
    Sketcher.Constraint("Equal", 41, 43),
    Sketcher.Constraint("Equal", 43, 45),
    Sketcher.Constraint("Equal", 45, 47),
    Sketcher.Constraint("Equal", 47, 49),
    Sketcher.Constraint("Equal", 49, 51),
    Sketcher.Constraint("Equal", 51, 53),
    Sketcher.Constraint("Equal", 53, 55),
    Sketcher.Constraint("Equal", 55, 57),
    Sketcher.Constraint("Equal", 57, 59),
    Sketcher.Constraint("Equal", 59, 61),
    Sketcher.Constraint("Equal", 61, 63),
    Sketcher.Constraint("Horizontal", 5, 3, 9, 3),
    Sketcher.Constraint("Horizontal", 7, 3, 13, 3),
    Sketcher.Constraint("Horizontal", 15, 3, 17, 3),
    Sketcher.Constraint("Horizontal", 11, 3, 19, 3),
    Sketcher.Constraint("Horizontal", 23, 3, 25, 3),
    Sketcher.Constraint("Horizontal", 21, 3, 27, 3),
    Sketcher.Constraint("Horizontal", 31, 3, 33, 3),
    Sketcher.Constraint("Horizontal", 29, 3, 35, 3),
    Sketcher.Constraint("Horizontal", 39, 3, 41, 3),
    Sketcher.Constraint("Horizontal", 37, 3, 43, 3),
    Sketcher.Constraint("Horizontal", 47, 3, 49, 3),
    Sketcher.Constraint("Horizontal", 45, 3, 51, 3),
    Sketcher.Constraint("Horizontal", 55, 3, 57, 3),
    Sketcher.Constraint("Horizontal", 53, 3, 59, 3),
    Sketcher.Constraint("Equal", 4, 10),
    Sketcher.Constraint("Equal", 14, 16),
    Sketcher.Constraint("Equal", 20, 24),
    Sketcher.Constraint("Equal", 28, 32),
    Sketcher.Constraint("Equal", 36, 40),
    Sketcher.Constraint("Equal", 44, 48),
    Sketcher.Constraint("Equal", 52, 56),
    Sketcher.Constraint("Radius", 1, 1.0),
    Sketcher.Constraint("DistanceY", 2, 2, 2, 1, 78.0),
    Sketcher.Constraint("DistanceX", 0, 2, 0, 1, 6.5),
    Sketcher.Constraint("DistanceY", -1, 1, 1, 3, 39.0),
    Sketcher.Constraint("DistanceX", -1, 1, 1, 3, 30.65),
    Sketcher.Constraint("DistanceX", -1, 1, 9, 3, 13.55),
    Sketcher.Constraint("DistanceX", -1, 1, 17, 3, 47.75),
    Sketcher.Constraint("DistanceX", -1, 1, 25, 3, 64.85),
    Sketcher.Constraint("DistanceX", -1, 1, 33, 3, 81.95),
    Sketcher.Constraint("DistanceX", -1, 1, 41, 3, 99.05),
    Sketcher.Constraint("DistanceX", -1, 1, 49, 3, 116.15),
    Sketcher.Constraint("DistanceX", -1, 1, 57, 3, 133.25),
])
pocket4 = body.newObject("PartDesign::Pocket", "Pocket003")
pocket4.Profile = sketch6
pocket4.Type = "ThroughAll"

# Sketch on YZ plane
sketch7 = body.newObject("Sketcher::SketchObject", "Sketch006")
sketch7.AttachmentSupport = (doc.getObject("YZ_Plane"), [""])
sketch7.MapMode = "FlatFace"
sketch7.AttachmentOffset = App.Placement(V(0, 0, 52.5), App.Rotation())
sketch7.addGeometry([
    Part.LineSegment(V(149.3, 39, 0), V(149.3, -39, 0)),  # 0
    Part.ArcOfCircle(Part.Circle(V(150.4, -39, 0), V(0, 0, 1), 1), math.radians(-180), math.radians(-90)),  # 1
    Part.LineSegment(V(150.3, -40, 0), V(163.8, -40, 0)),  # 2
    Part.ArcOfCircle(Part.Circle(V(163.7, -39, 0), V(0, 0, 1), 1), math.radians(-90), math.radians(0)),  # 3
    Part.LineSegment(V(164.8, -39, 0), V(164.8, 39, 0)),  # 4
    Part.ArcOfCircle(Part.Circle(V(163.7, 39, 0), V(0, 0, 1), 1), math.radians(0), math.radians(90)),  # 5
    Part.LineSegment(V(163.8, 40, 0), V(150.3, 40, 0)),  # 6
    Part.ArcOfCircle(Part.Circle(V(150.4, 39, 0), V(0, 0, 1), 1), math.radians(90), math.radians(180)),  # 7
    Part.LineSegment(V(187.6, 40, 0), V(174.2, 40, 0)),  # 8
    Part.ArcOfCircle(Part.Circle(V(174.2, 39, 0), V(0, 0, 1), 1), math.radians(90), math.radians(180)),  # 9
    Part.LineSegment(V(173.2, 39, 0), V(173.2, -39, 0)),  # 10
    Part.ArcOfCircle(Part.Circle(V(174.2, -39, 0), V(0, 0, 1), 1), math.radians(-180), math.radians(-90)),  # 11
    Part.LineSegment(V(174.2, -40, 0), V(187.6, -40, 0)),  # 12
    Part.ArcOfCircle(Part.Circle(V(187.5, -39, 0), V(0, 0, 1), 1), math.radians(-90), math.radians(0)),  # 13
    Part.LineSegment(V(188.6, -39, 0), V(188.6, 39, 0)),  # 14
    Part.ArcOfCircle(Part.Circle(V(187.5, 39, 0), V(0, 0, 1), 1), math.radians(0), math.radians(90)),  # 15
], False)
sketch7.addConstraint([
    Sketcher.Constraint("Tangent", 0, 2, 1, 1),
    Sketcher.Constraint("Tangent", 1, 2, 2, 1),
    Sketcher.Constraint("Tangent", 2, 2, 3, 1),
    Sketcher.Constraint("Tangent", 3, 2, 4, 1),
    Sketcher.Constraint("Tangent", 4, 2, 5, 1),
    Sketcher.Constraint("Tangent", 5, 2, 6, 1),
    Sketcher.Constraint("Tangent", 6, 2, 7, 1),
    Sketcher.Constraint("Tangent", 7, 2, 0, 1),
    Sketcher.Constraint("Tangent", 8, 2, 9, 1),
    Sketcher.Constraint("Tangent", 9, 2, 10, 1),
    Sketcher.Constraint("Tangent", 10, 2, 11, 1),
    Sketcher.Constraint("Tangent", 11, 2, 12, 1),
    Sketcher.Constraint("Tangent", 12, 2, 13, 1),
    Sketcher.Constraint("Tangent", 13, 2, 14, 1),
    Sketcher.Constraint("Tangent", 14, 2, 15, 1),
    Sketcher.Constraint("Tangent", 15, 2, 8, 1),
    Sketcher.Constraint("Vertical", 0),
    Sketcher.Constraint("Horizontal", 2),
    Sketcher.Constraint("Vertical", 4),
    Sketcher.Constraint("Horizontal", 6),
    Sketcher.Constraint("Horizontal", 8),
    Sketcher.Constraint("Vertical", 10),
    Sketcher.Constraint("Horizontal", 12),
    Sketcher.Constraint("Vertical", 14),
    Sketcher.Constraint("Equal", 1, 3),
    Sketcher.Constraint("Equal", 3, 5),
    Sketcher.Constraint("Equal", 5, 7),
    Sketcher.Constraint("Equal", 7, 9),
    Sketcher.Constraint("Equal", 9, 11),
    Sketcher.Constraint("Equal", 11, 13),
    Sketcher.Constraint("Equal", 13, 15),
    Sketcher.Constraint("Horizontal", 7, 3, 9, 3),
    Sketcher.Constraint("Horizontal", 3, 3, 11, 3),
    Sketcher.Constraint("Equal", 6, 8),
    Sketcher.Constraint("Radius", 1, 1.0),
    Sketcher.Constraint("DistanceY", 0, 2, 0, 1, 78.0),
    Sketcher.Constraint("DistanceX", 2, 1, 2, 2, 13.4),
    Sketcher.Constraint("DistanceY", 1, 3, -1, 1, 39.0),
    Sketcher.Constraint("DistanceX", 5, 3, 9, 3, 10.4),
    Sketcher.Constraint("DistanceX", -1, 1, 1, 3, 150.35),
])
pocket5 = body.newObject("PartDesign::Pocket", "Pocket004")
pocket5.Profile = sketch7
pocket5.Type = "ThroughAll"

# Sketch on YZ plane
sketch8 = body.newObject("Sketcher::SketchObject", "Sketch007")
sketch8.AttachmentSupport = (doc.getObject("YZ_Plane"), [""])
sketch8.MapMode = "FlatFace"
sketch8.AttachmentOffset = App.Placement(V(0, 0, 52.5), App.Rotation())
sketch8.addGeometry([
    Part.LineSegment(V(188.6, -10, 0), V(188.6, 10, 0)),  # 0
    Part.LineSegment(V(188.6, 10, 0), V(182.6, 10, 0)),  # 1
    Part.ArcOfCircle(Part.Circle(V(182.6, 9, 0), V(0, 0, 1), 1), math.radians(90), math.radians(180)),  # 2
    Part.LineSegment(V(181.6, 9, 0), V(181.6, -9, 0)),  # 3
    Part.ArcOfCircle(Part.Circle(V(182.6, -9, 0), V(0, 0, 1), 1), math.radians(-180), math.radians(-90)),  # 4
    Part.LineSegment(V(182.6, -10, 0), V(188.6, -10, 0)),  # 5
], False)
sketch8.addConstraint([
    Sketcher.Constraint("Coincident", 0, 2, 1, 1),
    Sketcher.Constraint("Tangent", 1, 2, 2, 1),
    Sketcher.Constraint("Tangent", 2, 2, 3, 1),
    Sketcher.Constraint("Tangent", 3, 2, 4, 1),
    Sketcher.Constraint("Tangent", 4, 2, 5, 1),
    Sketcher.Constraint("Coincident", 5, 2, 0, 1),
    Sketcher.Constraint("Vertical", 0),
    Sketcher.Constraint("Horizontal", 1),
    Sketcher.Constraint("Vertical", 3),
    Sketcher.Constraint("Horizontal", 5),
    Sketcher.Constraint("Equal", 2, 4),
    Sketcher.Constraint("Radius", 2, 1.0),
    Sketcher.Constraint("DistanceX", 1, 2, 1, 1, 6.0),
    Sketcher.Constraint("DistanceY", 0, 1, 0, 2, 20.0),
    Sketcher.Constraint("DistanceY", -1, 1, 2, 3, 9.0),
    Sketcher.Constraint("DistanceX", -1, 1, 2, 3, 182.55),
])
pad3 = body.newObject("PartDesign::Pad", "Pad002")
pad3.Profile = sketch8
pad3.Length = 1.5
pad3.Reversed = True

# Sketch on YZ plane
sketch9 = body.newObject("Sketcher::SketchObject", "Sketch008")
sketch9.AttachmentSupport = (doc.getObject("YZ_Plane"), [""])
sketch9.MapMode = "FlatFace"
sketch9.AttachmentOffset = App.Placement(V(0, 0, -51), App.Rotation())
sketch9.addGeometry([
    Part.LineSegment(V(188.6, 10, 0), V(188.6, -10, 0)),  # 0
    Part.LineSegment(V(188.6, -10, 0), V(182.6, -10, 0)),  # 1
    Part.ArcOfCircle(Part.Circle(V(182.6, -9, 0), V(0, 0, 1), 1), math.radians(-180), math.radians(-90)),  # 2
    Part.LineSegment(V(181.6, -9, 0), V(181.6, 9, 0)),  # 3
    Part.ArcOfCircle(Part.Circle(V(182.6, 9, 0), V(0, 0, 1), 1), math.radians(90), math.radians(180)),  # 4
    Part.LineSegment(V(182.6, 10, 0), V(188.6, 10, 0)),  # 5
], False)
sketch9.addConstraint([
    Sketcher.Constraint("Coincident", 0, 2, 1, 1),
    Sketcher.Constraint("Tangent", 1, 2, 2, 2),
    Sketcher.Constraint("Tangent", 2, 1, 3, 1),
    Sketcher.Constraint("Tangent", 3, 2, 4, 2),
    Sketcher.Constraint("Tangent", 4, 1, 5, 1),
    Sketcher.Constraint("Coincident", 5, 2, 0, 1),
    Sketcher.Constraint("Vertical", 0),
    Sketcher.Constraint("Horizontal", 1),
    Sketcher.Constraint("Vertical", 3),
    Sketcher.Constraint("Horizontal", 5),
    Sketcher.Constraint("Equal", 2, 4),
    Sketcher.Constraint("Radius", 2, 1.0),
    Sketcher.Constraint("DistanceX", 1, 2, 1, 1, 6.0),
    Sketcher.Constraint("DistanceY", 0, 2, 0, 1, 20.0),
    Sketcher.Constraint("DistanceY", 2, 3, -1, 1, 9.0),
    Sketcher.Constraint("DistanceX", -1, 1, 2, 3, 182.55),
])
pad4 = body.newObject("PartDesign::Pad", "Pad003")
pad4.Profile = sketch9
pad4.Length = 1.5
pad4.Reversed = True

# Sketch on YZ plane
sketch10 = body.newObject("Sketcher::SketchObject", "Sketch009")
sketch10.AttachmentSupport = (doc.getObject("YZ_Plane"), [""])
sketch10.MapMode = "FlatFace"
sketch10.AttachmentOffset = App.Placement(V(0, 0, 52.5), App.Rotation())
sketch10.addGeometry([
    Part.Circle(V(194.5, 4.5, 0), V(0, 0, 1), 1.5),
    Part.Circle(V(194.5, -4.5, 0), V(0, 0, 1), 1.5),
    Part.Circle(V(185.5, -4.5, 0), V(0, 0, 1), 1.5),
    Part.Circle(V(185.5, 4.5, 0), V(0, 0, 1), 1.5),
], False)
sketch10.addConstraint([
    Sketcher.Constraint("Equal", 0, 1),
    Sketcher.Constraint("Equal", 1, 2),
    Sketcher.Constraint("Equal", 2, 3),
    Sketcher.Constraint("Symmetric", 0, 3, 1, 3, -1),
    Sketcher.Constraint("Symmetric", 2, 3, 3, 3, -1),
    Sketcher.Constraint("Horizontal", 1, 3, 2, 3),
    Sketcher.Constraint("Diameter", 0, 3.0),
    Sketcher.Constraint("DistanceY", 1, 3, 0, 3, 9.0),
    Sketcher.Constraint("DistanceX", 2, 3, 1, 3, 9.0),
    Sketcher.Constraint("DistanceX", -1, 1, 0, 3, 194.5),
])
pocket6 = body.newObject("PartDesign::Pocket", "Pocket005")
pocket6.Profile = sketch10
pocket6.Type = "ThroughAll"

# Sketch on XY plane
sketch11 = body.newObject("Sketcher::SketchObject", "Sketch010")
sketch11.AttachmentSupport = (doc.getObject("XY_Plane"), [""])
sketch11.MapMode = "FlatFace"
sketch11.AttachmentOffset = App.Placement(V(0, 0, 52.5), App.Rotation())
sketch11.addGeometry([
    Part.LineSegment(V(10, 193.5, 0), V(-10, 193.5, 0)),  # 0
    Part.LineSegment(V(-10, 193.5, 0), V(-10, 192.5, 0)),  # 1
    Part.ArcOfCircle(Part.Circle(V(-9, 192.5, 0), V(0, 0, 1), 1), math.radians(-180), math.radians(-90)),  # 2
    Part.LineSegment(V(-9, 191.5, 0), V(9, 191.5, 0)),  # 3
    Part.ArcOfCircle(Part.Circle(V(9, 192.5, 0), V(0, 0, 1), 1), math.radians(-90), math.radians(0)),  # 4
    Part.LineSegment(V(10, 192.5, 0), V(10, 193.5, 0)),  # 5
], False)
sketch11.addConstraint([
    Sketcher.Constraint("Coincident", 0, 2, 1, 1),
    Sketcher.Constraint("Tangent", 1, 2, 2, 1),
    Sketcher.Constraint("Tangent", 2, 2, 3, 1),
    Sketcher.Constraint("Tangent", 3, 2, 4, 1),
    Sketcher.Constraint("Tangent", 4, 2, 5, 1),
    Sketcher.Constraint("Coincident", 5, 2, 0, 1),
    Sketcher.Constraint("Horizontal", 0),
    Sketcher.Constraint("Vertical", 1),
    Sketcher.Constraint("Horizontal", 3),
    Sketcher.Constraint("Vertical", 5),
    Sketcher.Constraint("Equal", 2, 4),
    Sketcher.Constraint("Radius", 2, 1.0),
    Sketcher.Constraint("DistanceX", 0, 2, 0, 1, 20.0),
    Sketcher.Constraint("DistanceY", 1, 2, 1, 1, 1.0),
    Sketcher.Constraint("DistanceX", 2, 3, -1, 1, 9.0),
    Sketcher.Constraint("DistanceY", -1, 1, 2, 3, 192.5),
])
pad5 = body.newObject("PartDesign::Pad", "Pad004")
pad5.Profile = sketch11
pad5.Length = 1.5
pad5.Reversed = True

# Sketch on XY plane
sketch12 = body.newObject("Sketcher::SketchObject", "Sketch011")
sketch12.AttachmentSupport = (doc.getObject("XY_Plane"), [""])
sketch12.MapMode = "FlatFace"
sketch12.AttachmentOffset = App.Placement(V(0, 0, -51), App.Rotation())
sketch12.addGeometry([
    Part.LineSegment(V(-10, 193.5, 0), V(10, 193.5, 0)),  # 0
    Part.LineSegment(V(10, 193.5, 0), V(10, 192.5, 0)),  # 1
    Part.ArcOfCircle(Part.Circle(V(9, 192.5, 0), V(0, 0, 1), 1), math.radians(-90), math.radians(0)),  # 2
    Part.LineSegment(V(9, 191.5, 0), V(-9, 191.5, 0)),  # 3
    Part.ArcOfCircle(Part.Circle(V(-9, 192.5, 0), V(0, 0, 1), 1), math.radians(-180), math.radians(-90)),  # 4
    Part.LineSegment(V(-10, 192.5, 0), V(-10, 193.5, 0)),  # 5
], False)
sketch12.addConstraint([
    Sketcher.Constraint("Coincident", 0, 2, 1, 1),
    Sketcher.Constraint("Tangent", 1, 2, 2, 2),
    Sketcher.Constraint("Tangent", 2, 1, 3, 1),
    Sketcher.Constraint("Tangent", 3, 2, 4, 2),
    Sketcher.Constraint("Tangent", 4, 1, 5, 1),
    Sketcher.Constraint("Coincident", 5, 2, 0, 1),
    Sketcher.Constraint("Horizontal", 0),
    Sketcher.Constraint("Vertical", 1),
    Sketcher.Constraint("Horizontal", 3),
    Sketcher.Constraint("Vertical", 5),
    Sketcher.Constraint("Equal", 2, 4),
    Sketcher.Constraint("Radius", 2, 1.0),
    Sketcher.Constraint("DistanceX", 0, 1, 0, 2, 20.0),
    Sketcher.Constraint("DistanceY", 1, 2, 1, 1, 1.0),
    Sketcher.Constraint("DistanceX", -1, 1, 2, 3, 9.0),
    Sketcher.Constraint("DistanceY", -1, 1, 2, 3, 192.5),
])
pad6 = body.newObject("PartDesign::Pad", "Pad005")
pad6.Profile = sketch12
pad6.Length = 1.5
pad6.Reversed = True

# Sketch on XY plane
sketch13 = body.newObject("Sketcher::SketchObject", "Sketch012")
sketch13.AttachmentSupport = (doc.getObject("XY_Plane"), [""])
sketch13.MapMode = "FlatFace"
sketch13.AttachmentOffset = App.Placement(V(0, 0, 52.5), App.Rotation())
sketch13.addGeometry([
    Part.Circle(V(-4.5, 194.5, 0), V(0, 0, 1), 1.5),
    Part.Circle(V(4.5, 194.5, 0), V(0, 0, 1), 1.5),
], False)
sketch13.addConstraint([
    Sketcher.Constraint("Equal", 0, 1),
    Sketcher.Constraint("Symmetric", 0, 3, 1, 3, -2),
    Sketcher.Constraint("Diameter", 0, 3.0),
    Sketcher.Constraint("DistanceX", 0, 3, 1, 3, 9.0),
    Sketcher.Constraint("DistanceY", -1, 1, 0, 3, 194.5),
])
pocket7 = body.newObject("PartDesign::Pocket", "Pocket006")
pocket7.Profile = sketch13
pocket7.Type = "ThroughAll"

doc.recompute()
